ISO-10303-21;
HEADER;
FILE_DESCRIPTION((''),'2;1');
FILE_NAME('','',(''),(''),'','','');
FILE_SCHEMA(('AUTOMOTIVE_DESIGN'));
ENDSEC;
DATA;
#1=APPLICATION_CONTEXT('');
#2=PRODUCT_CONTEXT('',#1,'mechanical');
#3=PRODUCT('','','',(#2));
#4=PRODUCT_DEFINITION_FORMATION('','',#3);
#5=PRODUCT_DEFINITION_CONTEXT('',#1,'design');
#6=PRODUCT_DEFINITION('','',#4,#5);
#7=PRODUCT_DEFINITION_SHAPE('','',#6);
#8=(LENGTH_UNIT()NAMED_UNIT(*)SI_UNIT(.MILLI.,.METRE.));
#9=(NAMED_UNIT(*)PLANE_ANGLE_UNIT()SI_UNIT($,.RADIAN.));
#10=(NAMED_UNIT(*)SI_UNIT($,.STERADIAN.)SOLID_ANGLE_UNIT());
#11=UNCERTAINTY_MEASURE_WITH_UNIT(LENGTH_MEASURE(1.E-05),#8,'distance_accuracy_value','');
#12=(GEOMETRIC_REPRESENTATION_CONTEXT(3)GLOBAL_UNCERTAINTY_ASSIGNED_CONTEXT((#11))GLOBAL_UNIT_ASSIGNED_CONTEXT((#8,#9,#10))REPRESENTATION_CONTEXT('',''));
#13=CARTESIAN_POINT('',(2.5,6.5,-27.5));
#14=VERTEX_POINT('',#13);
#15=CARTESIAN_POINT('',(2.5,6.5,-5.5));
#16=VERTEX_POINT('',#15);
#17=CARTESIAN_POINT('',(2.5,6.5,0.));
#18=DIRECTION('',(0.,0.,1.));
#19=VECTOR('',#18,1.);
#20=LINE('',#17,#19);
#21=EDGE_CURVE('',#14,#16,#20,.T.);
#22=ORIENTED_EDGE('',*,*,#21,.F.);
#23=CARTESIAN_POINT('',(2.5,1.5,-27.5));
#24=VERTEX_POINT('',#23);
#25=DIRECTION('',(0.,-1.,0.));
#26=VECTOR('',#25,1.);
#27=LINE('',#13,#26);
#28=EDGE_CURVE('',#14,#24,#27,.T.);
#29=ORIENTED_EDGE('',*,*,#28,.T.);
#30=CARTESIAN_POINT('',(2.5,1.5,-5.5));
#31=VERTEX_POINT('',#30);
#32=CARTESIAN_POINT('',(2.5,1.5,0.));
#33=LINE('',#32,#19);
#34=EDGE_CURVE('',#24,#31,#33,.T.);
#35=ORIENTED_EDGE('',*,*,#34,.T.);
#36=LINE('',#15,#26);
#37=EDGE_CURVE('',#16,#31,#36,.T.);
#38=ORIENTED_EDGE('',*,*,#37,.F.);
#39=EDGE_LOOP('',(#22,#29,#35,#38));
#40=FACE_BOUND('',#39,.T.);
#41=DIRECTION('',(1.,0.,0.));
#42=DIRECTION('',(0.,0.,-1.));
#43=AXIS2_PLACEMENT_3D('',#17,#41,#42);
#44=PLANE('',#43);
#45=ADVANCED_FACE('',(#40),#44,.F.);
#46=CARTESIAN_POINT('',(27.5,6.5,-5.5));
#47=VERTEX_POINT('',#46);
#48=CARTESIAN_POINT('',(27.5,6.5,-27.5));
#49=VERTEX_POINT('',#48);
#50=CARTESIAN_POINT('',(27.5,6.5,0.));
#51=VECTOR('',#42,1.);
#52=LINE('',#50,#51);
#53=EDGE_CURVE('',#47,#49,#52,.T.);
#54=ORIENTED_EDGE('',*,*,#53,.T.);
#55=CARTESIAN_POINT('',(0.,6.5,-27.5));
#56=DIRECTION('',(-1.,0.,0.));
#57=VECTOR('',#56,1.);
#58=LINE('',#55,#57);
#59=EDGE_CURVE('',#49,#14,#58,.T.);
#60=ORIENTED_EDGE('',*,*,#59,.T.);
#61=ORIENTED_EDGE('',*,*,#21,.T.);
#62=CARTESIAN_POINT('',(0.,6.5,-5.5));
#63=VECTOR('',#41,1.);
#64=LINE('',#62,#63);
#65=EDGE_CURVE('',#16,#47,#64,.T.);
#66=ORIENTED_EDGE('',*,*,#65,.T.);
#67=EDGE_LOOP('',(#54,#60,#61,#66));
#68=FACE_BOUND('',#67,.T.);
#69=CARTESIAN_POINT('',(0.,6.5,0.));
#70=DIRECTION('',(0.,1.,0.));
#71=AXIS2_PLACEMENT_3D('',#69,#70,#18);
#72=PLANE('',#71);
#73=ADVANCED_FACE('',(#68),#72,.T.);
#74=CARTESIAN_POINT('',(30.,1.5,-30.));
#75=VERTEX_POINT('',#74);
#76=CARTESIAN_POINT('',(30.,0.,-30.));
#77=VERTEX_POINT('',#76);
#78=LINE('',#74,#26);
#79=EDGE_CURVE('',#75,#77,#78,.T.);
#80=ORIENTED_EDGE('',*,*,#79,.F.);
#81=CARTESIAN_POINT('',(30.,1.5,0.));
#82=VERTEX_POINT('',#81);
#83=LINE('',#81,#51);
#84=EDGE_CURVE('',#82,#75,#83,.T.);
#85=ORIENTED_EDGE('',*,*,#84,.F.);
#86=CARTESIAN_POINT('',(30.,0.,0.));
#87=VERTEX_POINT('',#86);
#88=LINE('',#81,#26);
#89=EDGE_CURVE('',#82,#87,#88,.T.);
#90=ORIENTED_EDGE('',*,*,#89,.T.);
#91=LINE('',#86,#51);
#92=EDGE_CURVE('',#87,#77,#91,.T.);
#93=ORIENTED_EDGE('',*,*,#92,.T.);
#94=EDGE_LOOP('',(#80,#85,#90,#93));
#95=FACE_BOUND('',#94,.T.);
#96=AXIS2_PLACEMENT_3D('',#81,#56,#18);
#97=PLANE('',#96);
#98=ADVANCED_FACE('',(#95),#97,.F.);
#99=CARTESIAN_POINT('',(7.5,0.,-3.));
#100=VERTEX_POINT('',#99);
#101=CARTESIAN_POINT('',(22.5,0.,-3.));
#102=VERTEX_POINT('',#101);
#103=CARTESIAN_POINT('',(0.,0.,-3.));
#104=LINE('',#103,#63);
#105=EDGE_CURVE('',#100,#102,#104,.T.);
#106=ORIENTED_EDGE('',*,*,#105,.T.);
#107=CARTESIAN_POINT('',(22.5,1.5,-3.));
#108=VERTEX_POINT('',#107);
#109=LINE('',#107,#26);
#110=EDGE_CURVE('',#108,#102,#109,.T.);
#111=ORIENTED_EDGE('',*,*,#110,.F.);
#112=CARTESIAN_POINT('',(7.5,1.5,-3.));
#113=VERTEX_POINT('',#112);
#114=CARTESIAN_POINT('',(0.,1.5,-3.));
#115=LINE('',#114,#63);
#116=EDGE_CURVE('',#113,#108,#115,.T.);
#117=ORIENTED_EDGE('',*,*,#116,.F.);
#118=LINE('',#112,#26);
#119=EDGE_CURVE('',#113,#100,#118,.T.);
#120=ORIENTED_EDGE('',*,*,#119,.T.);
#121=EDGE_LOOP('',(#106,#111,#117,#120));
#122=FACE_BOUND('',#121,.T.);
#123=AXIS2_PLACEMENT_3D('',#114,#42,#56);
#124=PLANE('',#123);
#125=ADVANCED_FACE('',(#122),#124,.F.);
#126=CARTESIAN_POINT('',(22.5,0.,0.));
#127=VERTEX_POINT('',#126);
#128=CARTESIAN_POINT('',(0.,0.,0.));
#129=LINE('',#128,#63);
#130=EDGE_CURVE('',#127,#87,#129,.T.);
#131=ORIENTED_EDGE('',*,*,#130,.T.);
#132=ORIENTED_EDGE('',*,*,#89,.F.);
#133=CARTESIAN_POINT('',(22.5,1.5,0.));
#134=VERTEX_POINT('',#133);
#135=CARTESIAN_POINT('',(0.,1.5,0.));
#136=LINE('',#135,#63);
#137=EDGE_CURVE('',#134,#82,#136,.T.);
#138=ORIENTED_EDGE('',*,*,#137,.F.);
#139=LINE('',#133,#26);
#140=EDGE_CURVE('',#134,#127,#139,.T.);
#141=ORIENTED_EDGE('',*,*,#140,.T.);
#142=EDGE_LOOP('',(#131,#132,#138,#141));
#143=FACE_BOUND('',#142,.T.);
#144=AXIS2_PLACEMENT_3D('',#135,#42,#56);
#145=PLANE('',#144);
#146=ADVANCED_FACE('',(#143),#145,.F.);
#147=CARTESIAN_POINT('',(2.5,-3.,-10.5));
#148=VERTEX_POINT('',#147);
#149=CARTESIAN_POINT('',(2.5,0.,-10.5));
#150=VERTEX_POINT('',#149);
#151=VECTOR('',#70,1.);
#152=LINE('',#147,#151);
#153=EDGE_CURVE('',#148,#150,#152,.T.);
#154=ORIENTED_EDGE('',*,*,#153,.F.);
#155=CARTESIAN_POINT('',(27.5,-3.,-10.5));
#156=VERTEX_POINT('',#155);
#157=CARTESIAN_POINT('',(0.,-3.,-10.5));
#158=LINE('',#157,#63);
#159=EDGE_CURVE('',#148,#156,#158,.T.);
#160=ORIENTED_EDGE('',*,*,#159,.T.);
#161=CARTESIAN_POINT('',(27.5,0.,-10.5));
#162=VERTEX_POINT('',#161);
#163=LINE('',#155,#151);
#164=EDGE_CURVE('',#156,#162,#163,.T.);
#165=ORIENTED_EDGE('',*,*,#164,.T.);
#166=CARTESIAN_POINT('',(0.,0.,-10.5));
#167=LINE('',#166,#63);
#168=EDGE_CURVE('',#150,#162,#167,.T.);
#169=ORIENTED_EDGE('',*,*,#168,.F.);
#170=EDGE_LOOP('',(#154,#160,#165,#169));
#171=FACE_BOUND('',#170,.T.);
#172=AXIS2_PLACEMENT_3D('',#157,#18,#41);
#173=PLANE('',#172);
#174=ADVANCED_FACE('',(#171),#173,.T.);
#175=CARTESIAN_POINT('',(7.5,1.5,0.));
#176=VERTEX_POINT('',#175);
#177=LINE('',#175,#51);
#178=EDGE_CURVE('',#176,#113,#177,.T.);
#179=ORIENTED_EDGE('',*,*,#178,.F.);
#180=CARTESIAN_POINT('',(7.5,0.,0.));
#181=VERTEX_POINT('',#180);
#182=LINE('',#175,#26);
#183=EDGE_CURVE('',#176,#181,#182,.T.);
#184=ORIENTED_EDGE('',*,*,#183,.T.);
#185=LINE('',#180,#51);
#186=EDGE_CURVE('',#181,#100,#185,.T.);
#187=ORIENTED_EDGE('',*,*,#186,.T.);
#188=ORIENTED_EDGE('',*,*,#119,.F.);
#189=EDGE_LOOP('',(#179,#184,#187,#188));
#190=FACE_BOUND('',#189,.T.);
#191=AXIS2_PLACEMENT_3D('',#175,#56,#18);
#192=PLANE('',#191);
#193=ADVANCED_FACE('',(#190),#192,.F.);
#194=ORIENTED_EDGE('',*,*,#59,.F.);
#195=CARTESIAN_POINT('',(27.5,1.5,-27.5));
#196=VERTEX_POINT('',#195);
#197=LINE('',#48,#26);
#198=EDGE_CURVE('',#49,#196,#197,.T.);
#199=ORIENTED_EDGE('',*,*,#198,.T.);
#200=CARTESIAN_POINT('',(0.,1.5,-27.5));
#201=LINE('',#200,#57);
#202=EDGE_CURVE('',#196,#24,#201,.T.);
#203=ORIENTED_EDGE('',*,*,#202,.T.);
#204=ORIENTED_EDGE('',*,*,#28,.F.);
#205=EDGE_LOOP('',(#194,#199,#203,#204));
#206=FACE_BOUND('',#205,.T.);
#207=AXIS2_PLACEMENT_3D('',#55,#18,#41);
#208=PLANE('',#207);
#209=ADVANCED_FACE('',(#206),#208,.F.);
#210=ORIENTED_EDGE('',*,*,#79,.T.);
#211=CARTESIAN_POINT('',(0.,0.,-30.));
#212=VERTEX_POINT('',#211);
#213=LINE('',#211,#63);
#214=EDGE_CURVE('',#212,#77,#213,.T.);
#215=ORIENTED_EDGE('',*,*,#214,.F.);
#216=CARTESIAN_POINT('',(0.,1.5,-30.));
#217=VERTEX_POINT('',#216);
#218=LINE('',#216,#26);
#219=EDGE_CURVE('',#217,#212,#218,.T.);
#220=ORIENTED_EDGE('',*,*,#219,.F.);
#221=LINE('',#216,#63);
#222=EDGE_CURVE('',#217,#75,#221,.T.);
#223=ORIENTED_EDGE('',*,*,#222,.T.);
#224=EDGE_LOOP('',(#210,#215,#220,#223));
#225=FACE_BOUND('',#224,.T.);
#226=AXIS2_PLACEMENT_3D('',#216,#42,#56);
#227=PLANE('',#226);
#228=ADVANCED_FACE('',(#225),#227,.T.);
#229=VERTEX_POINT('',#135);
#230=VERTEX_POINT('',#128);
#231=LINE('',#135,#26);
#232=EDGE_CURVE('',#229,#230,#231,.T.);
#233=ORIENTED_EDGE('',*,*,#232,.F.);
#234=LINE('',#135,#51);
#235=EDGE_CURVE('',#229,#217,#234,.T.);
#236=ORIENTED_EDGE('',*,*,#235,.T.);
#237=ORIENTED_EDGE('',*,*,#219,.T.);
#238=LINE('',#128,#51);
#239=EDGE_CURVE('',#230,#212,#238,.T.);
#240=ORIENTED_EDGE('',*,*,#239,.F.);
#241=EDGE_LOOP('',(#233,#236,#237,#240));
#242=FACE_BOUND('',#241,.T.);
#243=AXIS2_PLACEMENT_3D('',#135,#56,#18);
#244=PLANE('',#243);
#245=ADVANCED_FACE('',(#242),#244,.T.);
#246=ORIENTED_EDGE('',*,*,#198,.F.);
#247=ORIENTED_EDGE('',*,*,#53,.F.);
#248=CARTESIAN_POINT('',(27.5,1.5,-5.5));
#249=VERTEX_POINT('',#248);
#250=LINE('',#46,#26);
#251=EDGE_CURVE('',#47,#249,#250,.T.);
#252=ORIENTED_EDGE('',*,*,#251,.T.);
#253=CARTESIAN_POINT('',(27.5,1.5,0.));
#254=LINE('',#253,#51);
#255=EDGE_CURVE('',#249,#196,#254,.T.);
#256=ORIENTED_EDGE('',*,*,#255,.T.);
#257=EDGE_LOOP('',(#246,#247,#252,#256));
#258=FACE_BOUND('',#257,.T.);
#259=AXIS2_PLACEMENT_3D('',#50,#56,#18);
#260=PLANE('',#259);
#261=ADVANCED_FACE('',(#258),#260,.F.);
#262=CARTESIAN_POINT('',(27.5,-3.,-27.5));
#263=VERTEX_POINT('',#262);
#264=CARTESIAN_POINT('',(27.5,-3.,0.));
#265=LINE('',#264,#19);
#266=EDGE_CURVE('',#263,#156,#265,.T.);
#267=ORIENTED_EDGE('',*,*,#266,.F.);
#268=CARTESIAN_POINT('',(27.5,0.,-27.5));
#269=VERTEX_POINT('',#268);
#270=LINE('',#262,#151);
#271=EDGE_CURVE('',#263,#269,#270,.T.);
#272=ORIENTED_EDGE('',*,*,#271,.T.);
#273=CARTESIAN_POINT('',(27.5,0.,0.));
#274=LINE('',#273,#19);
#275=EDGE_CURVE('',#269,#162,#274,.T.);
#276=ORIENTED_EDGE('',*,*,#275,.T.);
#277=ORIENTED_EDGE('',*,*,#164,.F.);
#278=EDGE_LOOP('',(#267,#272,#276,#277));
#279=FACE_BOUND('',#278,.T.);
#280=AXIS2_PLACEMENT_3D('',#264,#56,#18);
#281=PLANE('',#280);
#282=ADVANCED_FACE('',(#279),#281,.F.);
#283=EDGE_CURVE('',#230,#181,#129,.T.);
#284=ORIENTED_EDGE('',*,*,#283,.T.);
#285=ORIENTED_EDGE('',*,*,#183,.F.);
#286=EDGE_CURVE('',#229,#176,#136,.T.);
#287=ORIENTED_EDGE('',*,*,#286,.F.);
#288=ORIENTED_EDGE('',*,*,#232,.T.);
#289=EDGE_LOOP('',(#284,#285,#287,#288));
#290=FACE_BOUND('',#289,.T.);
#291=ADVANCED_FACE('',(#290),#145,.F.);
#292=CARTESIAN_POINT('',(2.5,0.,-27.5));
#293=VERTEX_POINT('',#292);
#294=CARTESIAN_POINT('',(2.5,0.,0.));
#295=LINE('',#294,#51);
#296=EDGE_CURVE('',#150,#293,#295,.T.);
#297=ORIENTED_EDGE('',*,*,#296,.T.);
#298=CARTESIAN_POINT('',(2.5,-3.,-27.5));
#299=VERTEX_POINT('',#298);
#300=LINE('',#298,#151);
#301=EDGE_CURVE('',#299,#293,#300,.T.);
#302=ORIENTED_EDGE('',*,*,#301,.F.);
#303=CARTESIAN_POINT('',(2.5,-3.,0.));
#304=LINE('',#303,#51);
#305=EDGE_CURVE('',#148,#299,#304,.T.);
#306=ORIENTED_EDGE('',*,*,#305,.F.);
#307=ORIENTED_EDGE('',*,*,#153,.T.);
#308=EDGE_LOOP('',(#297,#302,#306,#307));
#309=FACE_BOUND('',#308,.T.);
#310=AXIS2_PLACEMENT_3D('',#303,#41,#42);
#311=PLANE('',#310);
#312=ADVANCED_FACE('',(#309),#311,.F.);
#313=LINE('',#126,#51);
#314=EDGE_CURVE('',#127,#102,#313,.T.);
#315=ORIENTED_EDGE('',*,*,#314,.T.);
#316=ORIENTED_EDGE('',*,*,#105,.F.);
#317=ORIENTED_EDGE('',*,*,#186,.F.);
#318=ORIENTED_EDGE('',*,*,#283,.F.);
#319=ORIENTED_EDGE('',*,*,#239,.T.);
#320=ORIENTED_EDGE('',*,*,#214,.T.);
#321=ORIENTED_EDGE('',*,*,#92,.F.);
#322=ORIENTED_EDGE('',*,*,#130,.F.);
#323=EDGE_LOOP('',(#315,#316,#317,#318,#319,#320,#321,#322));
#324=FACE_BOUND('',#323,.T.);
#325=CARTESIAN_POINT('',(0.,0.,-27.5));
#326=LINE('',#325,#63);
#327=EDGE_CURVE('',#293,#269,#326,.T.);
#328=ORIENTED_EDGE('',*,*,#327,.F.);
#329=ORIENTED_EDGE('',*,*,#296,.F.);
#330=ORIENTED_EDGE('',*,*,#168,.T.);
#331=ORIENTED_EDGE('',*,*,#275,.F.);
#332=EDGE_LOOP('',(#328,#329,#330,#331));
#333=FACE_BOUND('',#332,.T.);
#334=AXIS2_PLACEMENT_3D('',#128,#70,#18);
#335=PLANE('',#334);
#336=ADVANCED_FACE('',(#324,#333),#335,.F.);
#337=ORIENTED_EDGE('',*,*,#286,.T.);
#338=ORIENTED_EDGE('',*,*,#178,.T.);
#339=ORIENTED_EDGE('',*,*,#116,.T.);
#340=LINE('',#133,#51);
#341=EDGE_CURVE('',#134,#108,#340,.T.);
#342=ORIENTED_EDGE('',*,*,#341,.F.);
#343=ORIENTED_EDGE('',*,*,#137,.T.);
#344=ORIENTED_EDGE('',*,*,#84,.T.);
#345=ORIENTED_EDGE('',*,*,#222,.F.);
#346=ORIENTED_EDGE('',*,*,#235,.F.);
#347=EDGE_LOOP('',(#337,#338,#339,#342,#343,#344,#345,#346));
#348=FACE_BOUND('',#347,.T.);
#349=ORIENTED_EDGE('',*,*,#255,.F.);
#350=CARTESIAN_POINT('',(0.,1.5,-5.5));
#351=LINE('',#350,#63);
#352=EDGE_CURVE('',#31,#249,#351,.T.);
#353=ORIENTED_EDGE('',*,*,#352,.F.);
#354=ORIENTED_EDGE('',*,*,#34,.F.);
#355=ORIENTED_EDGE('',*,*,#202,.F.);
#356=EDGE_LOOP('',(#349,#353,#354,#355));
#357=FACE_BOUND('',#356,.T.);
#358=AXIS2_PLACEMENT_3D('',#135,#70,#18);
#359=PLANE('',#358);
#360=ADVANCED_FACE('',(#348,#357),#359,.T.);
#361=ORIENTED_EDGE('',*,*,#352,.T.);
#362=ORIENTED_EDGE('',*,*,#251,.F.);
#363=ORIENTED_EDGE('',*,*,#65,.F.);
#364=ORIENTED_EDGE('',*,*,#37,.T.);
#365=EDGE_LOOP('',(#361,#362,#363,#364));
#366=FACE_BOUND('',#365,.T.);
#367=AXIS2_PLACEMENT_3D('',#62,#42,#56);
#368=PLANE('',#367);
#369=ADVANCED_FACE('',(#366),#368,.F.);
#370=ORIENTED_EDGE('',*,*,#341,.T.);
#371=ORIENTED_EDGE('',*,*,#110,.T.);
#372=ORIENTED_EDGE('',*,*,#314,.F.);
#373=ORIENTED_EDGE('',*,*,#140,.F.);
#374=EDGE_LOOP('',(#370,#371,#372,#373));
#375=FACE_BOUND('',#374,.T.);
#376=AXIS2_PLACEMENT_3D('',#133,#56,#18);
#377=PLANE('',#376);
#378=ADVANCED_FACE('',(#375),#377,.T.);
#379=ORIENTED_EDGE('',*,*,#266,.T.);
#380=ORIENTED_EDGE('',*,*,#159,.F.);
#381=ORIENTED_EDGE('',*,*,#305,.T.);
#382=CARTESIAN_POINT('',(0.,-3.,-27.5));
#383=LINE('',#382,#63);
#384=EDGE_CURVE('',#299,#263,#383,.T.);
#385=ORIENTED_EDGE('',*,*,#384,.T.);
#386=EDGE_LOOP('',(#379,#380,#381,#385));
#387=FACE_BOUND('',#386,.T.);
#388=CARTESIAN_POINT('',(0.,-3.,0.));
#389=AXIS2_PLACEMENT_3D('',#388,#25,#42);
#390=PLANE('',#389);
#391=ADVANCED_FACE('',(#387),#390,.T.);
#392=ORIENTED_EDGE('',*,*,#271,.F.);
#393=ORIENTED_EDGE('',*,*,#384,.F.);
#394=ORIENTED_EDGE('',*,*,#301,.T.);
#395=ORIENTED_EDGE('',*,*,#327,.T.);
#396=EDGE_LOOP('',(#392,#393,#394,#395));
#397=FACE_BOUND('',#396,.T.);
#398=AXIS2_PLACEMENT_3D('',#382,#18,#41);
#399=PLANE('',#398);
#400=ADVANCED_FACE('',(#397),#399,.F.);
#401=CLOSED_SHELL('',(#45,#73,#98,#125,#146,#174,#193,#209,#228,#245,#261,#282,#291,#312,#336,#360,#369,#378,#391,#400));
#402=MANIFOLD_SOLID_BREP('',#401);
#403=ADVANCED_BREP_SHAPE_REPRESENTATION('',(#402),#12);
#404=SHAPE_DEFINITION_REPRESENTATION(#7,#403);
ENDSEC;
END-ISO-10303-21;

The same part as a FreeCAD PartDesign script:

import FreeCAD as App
import Part
import Sketcher
Q = App.Units.Quantity

doc = App.newDocument("Part")
params = doc.addObject("Spreadsheet::Sheet", "Params")
for row, (alias, value) in enumerate([
    ("sketch1_width", "15 mm"),
    ("sketch1_width2", "30 mm"),
    ("sketch1_height", "3 mm"),
    ("pad1_length", "1.5 mm"),
    ("sketch2_width", "25 mm"),
    ("sketch2_height", "22 mm"),
    ("pad2_length", "5 mm"),
    ("sketch3_width", "25 mm"),
    ("sketch3_height", "17 mm"),
    ("pad3_length", "3 mm"),
], start=1):
    params.set(f"A{row}", alias)
    params.set(f"B{row}", "=" + value)
    params.setAlias(f"B{row}", alias)

body = doc.addObject("PartDesign::Body", "Body")

sketch1 = doc.addObject("Sketcher::SketchObject", "Sketch")
body.addObject(sketch1)
sketch1.AttachmentSupport = (doc.XZ_Plane, [""])
sketch1.MapMode = "FlatFace"
sketch1.addGeometry(Part.LineSegment(App.Vector(0, -30, 0), App.Vector(0, 0, 0)), False)
sketch1.addGeometry(Part.LineSegment(App.Vector(0, 0, 0), App.Vector(7.5, 0, 0)), False)
sketch1.addGeometry(Part.LineSegment(App.Vector(7.5, 0, 0), App.Vector(7.5, -3, 0)), False)
sketch1.addGeometry(Part.LineSegment(App.Vector(7.5, -3, 0), App.Vector(22.5, -3, 0)), False)
sketch1.addGeometry(Part.LineSegment(App.Vector(22.5, -3, 0), App.Vector(22.5, 0, 0)), False)
sketch1.addGeometry(Part.LineSegment(App.Vector(22.5, 0, 0), App.Vector(30, 0, 0)), False)
sketch1.addGeometry(Part.LineSegment(App.Vector(30, 0, 0), App.Vector(30, -30, 0)), False)
sketch1.addGeometry(Part.LineSegment(App.Vector(30, -30, 0), App.Vector(0, -30, 0)), False)
sketch1.addConstraint(Sketcher.Constraint("Coincident", 0, 2, 1, 1))
sketch1.addConstraint(Sketcher.Constraint("Coincident", 1, 2, 2, 1))
sketch1.addConstraint(Sketcher.Constraint("Coincident", 2, 2, 3, 1))
sketch1.addConstraint(Sketcher.Constraint("Coincident", 3, 2, 4, 1))
sketch1.addConstraint(Sketcher.Constraint("Coincident", 4, 2, 5, 1))
sketch1.addConstraint(Sketcher.Constraint("Coincident", 5, 2, 6, 1))
sketch1.addConstraint(Sketcher.Constraint("Coincident", 6, 2, 7, 1))
sketch1.addConstraint(Sketcher.Constraint("Coincident", 7, 2, 0, 1))
sketch1.addConstraint(Sketcher.Constraint("Vertical", 0))
sketch1.addConstraint(Sketcher.Constraint("Horizontal", 1))
sketch1.addConstraint(Sketcher.Constraint("Vertical", 2))
sketch1.addConstraint(Sketcher.Constraint("Horizontal", 3))
sketch1.addConstraint(Sketcher.Constraint("Vertical", 4))
sketch1.addConstraint(Sketcher.Constraint("Horizontal", 5))
sketch1.addConstraint(Sketcher.Constraint("Vertical", 6))
sketch1.addConstraint(Sketcher.Constraint("Horizontal", 7))
sketch1.addConstraint(Sketcher.Constraint("Coincident", 0, 2, -1, 1))
sketch1.addConstraint(Sketcher.Constraint("PointOnObject", 4, 2, -1))
sketch1.addConstraint(Sketcher.Constraint("Equal", 1, 5))
sketch1.addConstraint(Sketcher.Constraint("Equal", 7, 0))
sketch1.addConstraint(Sketcher.Constraint("DistanceX", 3, 1, 3, 2, Q("15 mm")))
sketch1.addConstraint(Sketcher.Constraint("DistanceX", 7, 2, 7, 1, Q("30 mm")))
sketch1.addConstraint(Sketcher.Constraint("DistanceY", 2, 2, 2, 1, Q("3 mm")))
sketch1.setExpression("Constraints[20]", "Params.sketch1_width")
sketch1.setExpression("Constraints[21]", "Params.sketch1_width2")
sketch1.setExpression("Constraints[22]", "Params.sketch1_height")
pad1 = doc.addObject("PartDesign::Pad", "Pad")
body.addObject(pad1)
pad1.Profile = sketch1
pad1.setExpression("Length", "Params.pad1_length")
pad1.Reversed = True

sketch2 = doc.addObject("Sketcher::SketchObject", "Sketch001")
body.addObject(sketch2)
sketch2.AttachmentSupport = (doc.XZ_Plane, [""])
sketch2.MapMode = "FlatFace"
sketch2.AttachmentOffset = App.Placement(App.Vector(0, 0, -1.5), App.Rotation())
sketch2.addGeometry(Part.LineSegment(App.Vector(28, -6, 0), App.Vector(28, -28, 0)), False)
sketch2.addGeometry(Part.LineSegment(App.Vector(28, -28, 0), App.Vector(2, -28, 0)), False)
sketch2.addGeometry(Part.LineSegment(App.Vector(2, -28, 0), App.Vector(2, -6, 0)), False)
sketch2.addGeometry(Part.LineSegment(App.Vector(2, -6, 0), App.Vector(28, -6, 0)), False)
sketch2.addConstraint(Sketcher.Constraint("Coincident", 0, 2, 1, 1))
sketch2.addConstraint(Sketcher.Constraint("Coincident", 1, 2, 2, 1))
sketch2.addConstraint(Sketcher.Constraint("Coincident", 2, 2, 3, 1))
sketch2.addConstraint(Sketcher.Constraint("Coincident", 3, 2, 0, 1))
sketch2.addConstraint(Sketcher.Constraint("Vertical", 0))
sketch2.addConstraint(Sketcher.Constraint("Horizontal", 1))
sketch2.addConstraint(Sketcher.Constraint("Vertical", 2))
sketch2.addConstraint(Sketcher.Constraint("Horizontal", 3))
sketch2.addConstraint(Sketcher.Constraint("DistanceX", 1, 2, 1, 1, Q("25 mm")))
sketch2.addConstraint(Sketcher.Constraint("DistanceY", 0, 2, 0, 1, Q("22 mm")))
sketch2.addConstraint(Sketcher.Constraint("DistanceX", -1, 1, 0, 2, Q("27.5 mm")))
sketch2.addConstraint(Sketcher.Constraint("DistanceY", 0, 2, -1, 1, Q("27.5 mm")))
sketch2.setExpression("Constraints[8]", "Params.sketch2_width")
sketch2.setExpression("Constraints[9]", "Params.sketch2_height")
pad2 = doc.addObject("PartDesign::Pad", "Pad001")
body.addObject(pad2)
pad2.Profile = sketch2
pad2.setExpression("Length", "Params.pad2_length")
pad2.Reversed = True

sketch3 = doc.addObject("Sketcher::SketchObject", "Sketch002")
body.addObject(sketch3)
sketch3.AttachmentSupport = (doc.XZ_Plane, [""])
sketch3.MapMode = "FlatFace"
sketch3.addGeometry(Part.LineSegment(App.Vector(2, -10, 0), App.Vector(2, -28, 0)), False)
sketch3.addGeometry(Part.LineSegment(App.Vector(2, -28, 0), App.Vector(28, -28, 0)), False)
sketch3.addGeometry(Part.LineSegment(App.Vector(28, -28, 0), App.Vector(28, -10, 0)), False)
sketch3.addGeometry(Part.LineSegment(App.Vector(28, -10, 0), App.Vector(2, -10, 0)), False)
sketch3.addConstraint(Sketcher.Constraint("Coincident", 0, 2, 1, 1))
sketch3.addConstraint(Sketcher.Constraint("Coincident", 1, 2, 2, 1))
sketch3.addConstraint(Sketcher.Constraint("Coincident", 2, 2, 3, 1))
sketch3.addConstraint(Sketcher.Constraint("Coincident", 3, 2, 0, 1))
sketch3.addConstraint(Sketcher.Constraint("Vertical", 0))
sketch3.addConstraint(Sketcher.Constraint("Horizontal", 1))
sketch3.addConstraint(Sketcher.Constraint("Vertical", 2))
sketch3.addConstraint(Sketcher.Constraint("Horizontal", 3))
sketch3.addConstraint(Sketcher.Constraint("DistanceX", 1, 1, 1, 2, Q("25 mm")))
sketch3.addConstraint(Sketcher.Constraint("DistanceY", 0, 2, 0, 1, Q("17 mm")))
sketch3.addConstraint(Sketcher.Constraint("DistanceX", -1, 1, 0, 2, Q("2.5 mm")))
sketch3.addConstraint(Sketcher.Constraint("DistanceY", 0, 2, -1, 1, Q("27.5 mm")))
sketch3.setExpression("Constraints[8]", "Params.sketch3_width")
sketch3.setExpression("Constraints[9]", "Params.sketch3_height")
pad3 = doc.addObject("PartDesign::Pad", "Pad002")
body.addObject(pad3)
pad3.Profile = sketch3
pad3.setExpression("Length", "Params.pad3_length")

doc.recompute()
